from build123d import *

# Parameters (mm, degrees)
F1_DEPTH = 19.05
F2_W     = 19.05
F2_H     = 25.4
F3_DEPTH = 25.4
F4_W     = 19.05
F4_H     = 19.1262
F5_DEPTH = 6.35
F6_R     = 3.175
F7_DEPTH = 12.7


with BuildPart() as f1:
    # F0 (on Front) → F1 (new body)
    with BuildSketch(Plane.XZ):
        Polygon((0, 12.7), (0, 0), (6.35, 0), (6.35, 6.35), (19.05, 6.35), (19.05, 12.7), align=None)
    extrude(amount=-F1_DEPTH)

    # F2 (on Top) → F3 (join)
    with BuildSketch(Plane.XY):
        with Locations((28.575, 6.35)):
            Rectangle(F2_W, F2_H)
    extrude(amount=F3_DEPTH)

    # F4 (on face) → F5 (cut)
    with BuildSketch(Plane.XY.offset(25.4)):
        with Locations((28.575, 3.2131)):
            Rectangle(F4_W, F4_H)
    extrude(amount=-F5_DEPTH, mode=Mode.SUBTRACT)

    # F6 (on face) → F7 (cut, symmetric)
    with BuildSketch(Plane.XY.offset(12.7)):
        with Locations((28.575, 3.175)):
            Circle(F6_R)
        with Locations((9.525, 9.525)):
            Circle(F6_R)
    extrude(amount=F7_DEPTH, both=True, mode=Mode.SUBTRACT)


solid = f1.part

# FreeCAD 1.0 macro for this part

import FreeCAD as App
import Part
import Sketcher
Q = App.Units.Quantity


def add_polygon(sketch, points):
    """Adds a closed chain of lines whose ends are joined by coincident constraints."""
    first, n = sketch.GeometryCount, len(points)
    for a, b in zip(points, points[1:] + points[:1]):
        sketch.addGeometry(Part.LineSegment(App.Vector(*a, 0), App.Vector(*b, 0)), False)
    for i in range(n):
        sketch.addConstraint(Sketcher.Constraint("Coincident", first + i, 2, first + (i + 1) % n, 1))

doc = App.newDocument("Part")
body = doc.addObject("PartDesign::Body", "Body")

# Sketch on XZ plane
sketch1 = body.newObject("Sketcher::SketchObject", "Sketch")
sketch1.AttachmentSupport = (doc.getObject("XZ_Plane"), [""])
sketch1.MapMode = "FlatFace"
add_polygon(sketch1, [(0, 13), (0, 0), (6, 0), (6, 6), (19, 6), (19, 13)])  # lines 0-5
sketch1.addConstraint([
    Sketcher.Constraint("Vertical", 0),
    Sketcher.Constraint("Horizontal", 1),
    Sketcher.Constraint("Vertical", 2),
    Sketcher.Constraint("Horizontal", 3),
    Sketcher.Constraint("Vertical", 4),
    Sketcher.Constraint("Horizontal", 5),
    Sketcher.Constraint("Coincident", 0, 2, -1, 1),
    Sketcher.Constraint("Equal", 3, 0),
    Sketcher.Constraint("Equal", 1, 2),
    Sketcher.Constraint("Equal", 2, 4),
    Sketcher.Constraint("DistanceX", 3, 1, 3, 2, Q("0.5 in")),
])
pad1 = body.newObject("PartDesign::Pad", "Pad")
pad1.Profile = sketch1
pad1.Length = Q("0.75 in")
pad1.Reversed = True

# Sketch on XY plane
sketch2 = body.newObject("Sketcher::SketchObject", "Sketch001")
sketch2.AttachmentSupport = (doc.getObject("XY_Plane"), [""])
sketch2.MapMode = "FlatFace"
add_polygon(sketch2, [(19, 19), (19, -6), (38, -6), (38, 19)])  # lines 0-3
sketch2.addConstraint([
    Sketcher.Constraint("Vertical", 0),
    Sketcher.Constraint("Horizontal", 1),
    Sketcher.Constraint("Vertical", 2),
    Sketcher.Constraint("Horizontal", 3),
    Sketcher.Constraint("DistanceY", 0, 2, 0, 1, Q("1 in")),
    Sketcher.Constraint("DistanceX", 1, 1, 1, 2, Q("0.75 in")),
    Sketcher.Constraint("DistanceX", -1, 1, 1, 2, Q("1.5 in")),
    Sketcher.Constraint("DistanceY", 0, 2, -1, 1, Q("0.25 in")),
])
pad2 = body.newObject("PartDesign::Pad", "Pad001")
pad2.Profile = sketch2
pad2.Length = Q("1 in")

# Sketch on XY plane
sketch3 = body.newObject("Sketcher::SketchObject", "Sketch002")
sketch3.AttachmentSupport = (doc.getObject("XY_Plane"), [""])
sketch3.MapMode = "FlatFace"
sketch3.AttachmentOffset = App.Placement(App.Vector(0, 0, 1 * 25.4), App.Rotation())
add_polygon(sketch3, [(19, 13), (19, -6), (38, -6), (38, 13)])  # lines 0-3
sketch3.addConstraint([
    Sketcher.Constraint("Vertical", 0),
    Sketcher.Constraint("Horizontal", 1),
    Sketcher.Constraint("Vertical", 2),
    Sketcher.Constraint("Horizontal", 3),
    Sketcher.Constraint("DistanceX", 1, 1, 1, 2, Q("0.75 in")),
    Sketcher.Constraint("DistanceX", -1, 1, 1, 2, Q("1.5 in")),
    Sketcher.Constraint("DistanceY", 0, 2, 0, 1, Q("0.753 in")),
    Sketcher.Constraint("DistanceY", 0, 2, -1, 1, Q("0.25 in")),
])
pocket1 = body.newObject("PartDesign::Pocket", "Pocket")
pocket1.Profile = sketch3
pocket1.Length = Q("0.25 in")

# Sketch on XY plane
sketch4 = body.newObject("Sketcher::SketchObject", "Sketch003")
sketch4.AttachmentSupport = (doc.getObject("XY_Plane"), [""])
sketch4.MapMode = "FlatFace"
sketch4.AttachmentOffset = App.Placement(App.Vector(0, 0, 0.5 * 25.4), App.Rotation())
sketch4.addGeometry([
    Part.Circle(App.Vector(28.6, 3.2, 0), App.Vector(0, 0, 1), 3.2),
    Part.Circle(App.Vector(9.5, 9.5, 0), App.Vector(0, 0, 1), 3.2),
], False)
sketch4.addConstraint([
    Sketcher.Constraint("Equal", 0, 1),
    Sketcher.Constraint("Diameter", 0, Q("0.25 in")),
    Sketcher.Constraint("DistanceX", 1, 3, 0, 3, Q("0.75 in")),
    Sketcher.Constraint("DistanceY", 0, 3, 1, 3, Q("0.25 in")),
    Sketcher.Constraint("DistanceX", -1, 1, 0, 3, Q("1.125 in")),
    Sketcher.Constraint("DistanceY", -1, 1, 0, 3, Q("0.125 in")),
])
pocket2 = body.newObject("PartDesign::Pocket", "Pocket001")
pocket2.Profile = sketch4
pocket2.Length = Q("1 in")
pocket2.Midplane = True

doc.recompute()
